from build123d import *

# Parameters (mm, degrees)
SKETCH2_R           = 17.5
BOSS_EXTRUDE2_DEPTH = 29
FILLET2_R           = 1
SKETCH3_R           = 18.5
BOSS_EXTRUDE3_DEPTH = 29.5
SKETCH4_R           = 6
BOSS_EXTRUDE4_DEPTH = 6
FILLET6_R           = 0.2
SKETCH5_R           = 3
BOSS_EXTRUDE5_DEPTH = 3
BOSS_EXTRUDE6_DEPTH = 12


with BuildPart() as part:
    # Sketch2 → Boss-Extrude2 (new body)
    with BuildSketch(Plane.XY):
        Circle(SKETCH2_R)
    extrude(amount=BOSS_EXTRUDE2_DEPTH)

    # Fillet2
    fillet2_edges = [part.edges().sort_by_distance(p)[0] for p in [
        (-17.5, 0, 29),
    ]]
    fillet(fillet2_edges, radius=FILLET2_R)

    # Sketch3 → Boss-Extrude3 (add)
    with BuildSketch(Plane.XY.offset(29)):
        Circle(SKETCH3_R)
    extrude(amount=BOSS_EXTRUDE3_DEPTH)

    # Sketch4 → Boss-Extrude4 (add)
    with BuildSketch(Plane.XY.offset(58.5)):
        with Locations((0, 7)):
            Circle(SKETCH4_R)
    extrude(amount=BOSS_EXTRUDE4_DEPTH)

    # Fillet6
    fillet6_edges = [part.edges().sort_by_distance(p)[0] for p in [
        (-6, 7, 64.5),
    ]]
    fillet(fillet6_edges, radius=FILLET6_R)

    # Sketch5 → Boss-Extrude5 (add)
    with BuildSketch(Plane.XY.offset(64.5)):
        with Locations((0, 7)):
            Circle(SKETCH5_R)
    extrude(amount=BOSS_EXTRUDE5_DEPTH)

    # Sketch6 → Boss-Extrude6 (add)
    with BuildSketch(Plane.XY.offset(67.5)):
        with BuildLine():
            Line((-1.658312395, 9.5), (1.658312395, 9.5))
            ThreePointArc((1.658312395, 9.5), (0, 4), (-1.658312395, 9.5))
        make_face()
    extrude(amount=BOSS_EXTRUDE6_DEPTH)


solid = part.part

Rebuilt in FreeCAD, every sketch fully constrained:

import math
import FreeCAD as App
import Part
import Sketcher
Q = App.Units.Quantity


def edges_at(feature, points):
    """Names of the edges that pass closest to the given points."""
    edges = feature.Shape.Edges
    near = lambda p: min(range(len(edges)), key=lambda i: edges[i].distToShape(Part.Vertex(*p))[0])
    return sorted({f"Edge{near(p) + 1}" for p in points})

doc = App.newDocument("Part")
body = doc.addObject("PartDesign::Body", "Body")

# Sketch on XY plane
sketch1 = body.newObject("Sketcher::SketchObject", "Sketch")
sketch1.AttachmentSupport = (doc.getObject("XY_Plane"), [""])
sketch1.MapMode = "FlatFace"
sketch1.addGeometry(Part.Circle(App.Vector(0, 0, 0), App.Vector(0, 0, 1), 18), False)
sketch1.addConstraint(Sketcher.Constraint("Coincident", 0, 3, -1, 1))
sketch1.addConstraint(Sketcher.Constraint("Diameter", 0, Q("35 mm")))
pad1 = body.newObject("PartDesign::Pad", "Pad")
pad1.Profile = sketch1
pad1.Length = 29
doc.recompute()

fillet = body.newObject("PartDesign::Fillet", "Fillet")
fillet.Base = (pad1, edges_at(pad1, [(-17.5, 0, 29)]))
fillet.Radius = 1

# Sketch on XY plane
sketch2 = body.newObject("Sketcher::SketchObject", "Sketch001")
sketch2.AttachmentSupport = (doc.getObject("XY_Plane"), [""])
sketch2.MapMode = "FlatFace"
sketch2.AttachmentOffset = App.Placement(App.Vector(0, 0, 29), App.Rotation())
sketch2.addGeometry(Part.Circle(App.Vector(0, 0, 0), App.Vector(0, 0, 1), 18), False)
sketch2.addConstraint(Sketcher.Constraint("Coincident", 0, 3, -1, 1))
sketch2.addConstraint(Sketcher.Constraint("Diameter", 0, Q("37 mm")))
pad2 = body.newObject("PartDesign::Pad", "Pad001")
pad2.Profile = sketch2
pad2.Length = 29.5

# Sketch on XY plane
sketch3 = body.newObject("Sketcher::SketchObject", "Sketch002")
sketch3.AttachmentSupport = (doc.getObject("XY_Plane"), [""])
sketch3.MapMode = "FlatFace"
sketch3.AttachmentOffset = App.Placement(App.Vector(0, 0, 58.5), App.Rotation())
sketch3.addGeometry(Part.Circle(App.Vector(0, 7, 0), App.Vector(0, 0, 1), 6), False)
sketch3.addConstraint(Sketcher.Constraint("PointOnObject", 0, 3, -2))
sketch3.addConstraint(Sketcher.Constraint("Diameter", 0, Q("12 mm")))
sketch3.addConstraint(Sketcher.Constraint("DistanceY", -1, 1, 0, 3, Q("7 mm")))
pad3 = body.newObject("PartDesign::Pad", "Pad002")
pad3.Profile = sketch3
pad3.Length = 6
doc.recompute()

fillet2 = body.newObject("PartDesign::Fillet", "Fillet001")
fillet2.Base = (pad3, edges_at(pad3, [(-6, 7, 64.5)]))
fillet2.Radius = 0.2

# Sketch on XY plane
sketch4 = body.newObject("Sketcher::SketchObject", "Sketch003")
sketch4.AttachmentSupport = (doc.getObject("XY_Plane"), [""])
sketch4.MapMode = "FlatFace"
sketch4.AttachmentOffset = App.Placement(App.Vector(0, 0, 64.5), App.Rotation())
sketch4.addGeometry(Part.Circle(App.Vector(0, 7, 0), App.Vector(0, 0, 1), 3), False)
sketch4.addConstraint(Sketcher.Constraint("PointOnObject", 0, 3, -2))
sketch4.addConstraint(Sketcher.Constraint("Diameter", 0, Q("6 mm")))
sketch4.addConstraint(Sketcher.Constraint("DistanceY", -1, 1, 0, 3, Q("7 mm")))
pad4 = body.newObject("PartDesign::Pad", "Pad003")
pad4.Profile = sketch4
pad4.Length = 3

# Sketch on XY plane
sketch5 = body.newObject("Sketcher::SketchObject", "Sketch004")
sketch5.AttachmentSupport = (doc.getObject("XY_Plane"), [""])
sketch5.MapMode = "FlatFace"
sketch5.AttachmentOffset = App.Placement(App.Vector(0, 0, 67.5), App.Rotation())
sketch5.addGeometry(Part.LineSegment(App.Vector(1.7, 9.5, 0), App.Vector(-1.7, 9.5, 0)), False)
sketch5.addGeometry(Part.ArcOfCircle(Part.Circle(App.Vector(0, 7, 0), App.Vector(0, 0, 1), 3), math.radians(124), math.radians(416)), False)
sketch5.addConstraint(Sketcher.Constraint("Coincident", 0, 1, 1, 2))
sketch5.addConstraint(Sketcher.Constraint("Coincident", 1, 1, 0, 2))
sketch5.addConstraint(Sketcher.Constraint("Horizontal", 0))
sketch5.addConstraint(Sketcher.Constraint("PointOnObject", 1, 3, -2))
sketch5.addConstraint(Sketcher.Constraint("Radius", 1, Q("3 mm")))
sketch5.addConstraint(Sketcher.Constraint("DistanceY", -1, 1, 1, 3, Q("7 mm")))
sketch5.addConstraint(Sketcher.Constraint("DistanceY", -1, 1, 0, 1, Q("9.5 mm")))
pad5 = body.newObject("PartDesign::Pad", "Pad004")
pad5.Profile = sketch5
pad5.Length = 12

doc.recompute()
